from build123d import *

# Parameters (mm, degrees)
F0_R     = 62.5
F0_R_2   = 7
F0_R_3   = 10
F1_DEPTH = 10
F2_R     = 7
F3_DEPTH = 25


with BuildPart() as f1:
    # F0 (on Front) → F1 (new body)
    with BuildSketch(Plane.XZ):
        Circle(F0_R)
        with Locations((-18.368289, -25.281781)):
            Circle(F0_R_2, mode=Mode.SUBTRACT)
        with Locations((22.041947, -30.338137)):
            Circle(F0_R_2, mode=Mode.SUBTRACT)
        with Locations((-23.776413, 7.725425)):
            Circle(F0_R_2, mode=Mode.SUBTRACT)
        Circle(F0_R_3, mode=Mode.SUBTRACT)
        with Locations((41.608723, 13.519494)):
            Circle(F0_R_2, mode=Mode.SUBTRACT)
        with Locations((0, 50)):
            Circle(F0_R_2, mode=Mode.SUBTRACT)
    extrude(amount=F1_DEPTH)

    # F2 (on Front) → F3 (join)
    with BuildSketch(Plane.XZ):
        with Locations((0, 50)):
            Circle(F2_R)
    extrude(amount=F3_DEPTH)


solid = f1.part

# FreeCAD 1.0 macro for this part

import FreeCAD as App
import Part
import Sketcher
from FreeCAD import Vector

doc = App.newDocument("Part")
params = doc.addObject("Spreadsheet::Sheet", "Params")
for row, (alias, value) in enumerate([
    ("sketch1_diameter", "125 mm"),
    ("sketch1_diameter2", "14 mm"),
    ("sketch1_diameter3", "20 mm"),
    ("pad1_length", "10 mm"),
    ("sketch2_diameter", "14 mm"),
    ("pad2_length", "25 mm"),
], start=1):
    params.set(f"A{row}", alias)
    params.set(f"B{row}", "=" + value)
    params.setAlias(f"B{row}", alias)

body = doc.addObject("PartDesign::Body", "Body")

sketch1 = body.newObject("Sketcher::SketchObject", "Sketch")
sketch1.AttachmentSupport = (doc.getObject("XZ_Plane"), [""])
sketch1.MapMode = "FlatFace"
sketch1.addGeometry([
    Part.Circle(Vector(0, 0, 0), Vector(0, 0, 1), 62),
    Part.Circle(Vector(-18, -25, 0), Vector(0, 0, 1), 7),
    Part.Circle(Vector(-24, 8, 0), Vector(0, 0, 1), 7),
    Part.Circle(Vector(0, 0, 0), Vector(0, 0, 1), 10),
    Part.Circle(Vector(22, -30, 0), Vector(0, 0, 1), 7),
    Part.Circle(Vector(0, 50, 0), Vector(0, 0, 1), 7),
    Part.Circle(Vector(42, 14, 0), Vector(0, 0, 1), 7),
], False)
sketch1.addConstraint([
    Sketcher.Constraint("Coincident", 0, 3, -1, 1),
    Sketcher.Constraint("Coincident", 3, 3, -1, 1),
    Sketcher.Constraint("Equal", 1, 2),
    Sketcher.Constraint("Equal", 2, 4),
    Sketcher.Constraint("Equal", 4, 5),
    Sketcher.Constraint("Equal", 5, 6),
    Sketcher.Constraint("PointOnObject", 5, 3, -2),
    Sketcher.Constraint("Diameter", 0, 125.0),
    Sketcher.Constraint("Diameter", 1, 14.0),
    Sketcher.Constraint("Diameter", 3, 20.0),
    Sketcher.Constraint("DistanceY", -1, 1, 5, 3, 50.0),
    Sketcher.Constraint("DistanceX", 1, 3, -1, 1, 18.368289),
    Sketcher.Constraint("DistanceY", 1, 3, -1, 1, 25.281781),
    Sketcher.Constraint("DistanceX", 2, 3, 4, 3, 45.81836),
    Sketcher.Constraint("DistanceY", 4, 3, 2, 3, 38.063562),
    Sketcher.Constraint("DistanceY", 4, 3, 6, 3, 43.857631),
    Sketcher.Constraint("DistanceX", 2, 3, -1, 1, 23.776413),
    Sketcher.Constraint("DistanceY", -1, 1, 2, 3, 7.725425),
    Sketcher.Constraint("DistanceX", -1, 1, 6, 3, 41.608723),
])
sketch1.setExpression("Constraints[7]", "Params.sketch1_diameter")
sketch1.setExpression("Constraints[8]", "Params.sketch1_diameter2")
sketch1.setExpression("Constraints[9]", "Params.sketch1_diameter3")
pad1 = body.newObject("PartDesign::Pad", "Pad")
pad1.Profile = sketch1
pad1.setExpression("Length", "Params.pad1_length")

sketch2 = body.newObject("Sketcher::SketchObject", "Sketch001")
sketch2.AttachmentSupport = (doc.getObject("XZ_Plane"), [""])
sketch2.MapMode = "FlatFace"
sketch2.addGeometry(Part.Circle(Vector(0, 50, 0), Vector(0, 0, 1), 7), False)
sketch2.addConstraint([
    Sketcher.Constraint("PointOnObject", 0, 3, -2),
    Sketcher.Constraint("Diameter", 0, 14.0),
    Sketcher.Constraint("DistanceY", -1, 1, 0, 3, 50.0),
])
sketch2.setExpression("Constraints[1]", "Params.sketch2_diameter")
pad2 = body.newObject("PartDesign::Pad", "Pad001")
pad2.Profile = sketch2
pad2.setExpression("Length", "Params.pad2_length")

doc.recompute()
